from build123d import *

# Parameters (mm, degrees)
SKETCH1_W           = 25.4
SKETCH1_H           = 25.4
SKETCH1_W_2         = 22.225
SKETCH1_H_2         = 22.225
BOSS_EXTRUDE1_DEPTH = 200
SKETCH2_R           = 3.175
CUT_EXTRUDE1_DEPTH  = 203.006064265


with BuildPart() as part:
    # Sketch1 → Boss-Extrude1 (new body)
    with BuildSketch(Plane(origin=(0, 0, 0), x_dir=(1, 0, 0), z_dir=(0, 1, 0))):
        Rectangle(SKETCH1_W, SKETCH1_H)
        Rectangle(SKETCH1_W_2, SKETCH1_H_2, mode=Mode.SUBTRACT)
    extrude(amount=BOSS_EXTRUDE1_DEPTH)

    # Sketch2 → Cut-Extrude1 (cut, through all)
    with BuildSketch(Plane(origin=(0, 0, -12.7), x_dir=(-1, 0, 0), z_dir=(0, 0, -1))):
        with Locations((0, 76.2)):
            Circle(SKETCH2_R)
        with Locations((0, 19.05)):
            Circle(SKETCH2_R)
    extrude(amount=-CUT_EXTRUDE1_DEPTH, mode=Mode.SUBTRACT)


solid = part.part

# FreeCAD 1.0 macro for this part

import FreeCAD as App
import Part
import Sketcher
Q = App.Units.Quantity

doc = App.newDocument("Part")
body = doc.addObject("PartDesign::Body", "Body")

# Sketch on XZ plane
sketch1 = doc.addObject("Sketcher::SketchObject", "Sketch")
body.addObject(sketch1)
sketch1.AttachmentSupport = (doc.XZ_Plane, [""])
sketch1.MapMode = "FlatFace"
sketch1.addGeometry([
    Part.LineSegment(App.Vector(-13, -13, 0), App.Vector(-13, 13, 0)),  # 0
    Part.LineSegment(App.Vector(-13, 13, 0), App.Vector(13, 13, 0)),  # 1
    Part.LineSegment(App.Vector(13, 13, 0), App.Vector(13, -13, 0)),  # 2
    Part.LineSegment(App.Vector(13, -13, 0), App.Vector(-13, -13, 0)),  # 3
    Part.LineSegment(App.Vector(11, 11, 0), App.Vector(-11, 11, 0)),  # 4
    Part.LineSegment(App.Vector(-11, 11, 0), App.Vector(-11, -11, 0)),  # 5
    Part.LineSegment(App.Vector(-11, -11, 0), App.Vector(11, -11, 0)),  # 6
    Part.LineSegment(App.Vector(11, -11, 0), App.Vector(11, 11, 0)),  # 7
], False)
sketch1.addConstraint([
    Sketcher.Constraint("Coincident", 0, 2, 1, 1),
    Sketcher.Constraint("Coincident", 1, 2, 2, 1),
    Sketcher.Constraint("Coincident", 2, 2, 3, 1),
    Sketcher.Constraint("Coincident", 3, 2, 0, 1),
    Sketcher.Constraint("Coincident", 4, 2, 5, 1),
    Sketcher.Constraint("Coincident", 5, 2, 6, 1),
    Sketcher.Constraint("Coincident", 6, 2, 7, 1),
    Sketcher.Constraint("Coincident", 7, 2, 4, 1),
    Sketcher.Constraint("Vertical", 0),
    Sketcher.Constraint("Horizontal", 1),
    Sketcher.Constraint("Vertical", 2),
    Sketcher.Constraint("Horizontal", 3),
    Sketcher.Constraint("Horizontal", 4),
    Sketcher.Constraint("Vertical", 5),
    Sketcher.Constraint("Horizontal", 6),
    Sketcher.Constraint("Vertical", 7),
    Sketcher.Constraint("Symmetric", 0, 2, 2, 2, -1, 1),
    Sketcher.Constraint("Symmetric", 4, 2, 6, 2, -1, 1),
    Sketcher.Constraint("Equal", 3, 0),
    Sketcher.Constraint("Equal", 6, 5),
    Sketcher.Constraint("DistanceX", 1, 1, 1, 2, Q("1 in")),
    Sketcher.Constraint("DistanceX", 4, 2, 4, 1, Q("0.875 in")),
])
pad1 = doc.addObject("PartDesign::Pad", "Pad")
body.addObject(pad1)
pad1.Profile = sketch1
pad1.Length = 200
pad1.Reversed = True

# Sketch on XY plane
sketch2 = doc.addObject("Sketcher::SketchObject", "Sketch001")
body.addObject(sketch2)
sketch2.AttachmentSupport = (doc.XY_Plane, [""])
sketch2.MapMode = "FlatFace"
sketch2.AttachmentOffset = App.Placement(App.Vector(0, 0, -0.5 * 25.4), App.Rotation())
sketch2.addGeometry([
    Part.Circle(App.Vector(0, 76.2, 0), App.Vector(0, 0, 1), 3.2),
    Part.Circle(App.Vector(0, 19.1, 0), App.Vector(0, 0, 1), 3.2),
], False)
sketch2.addConstraint([
    Sketcher.Constraint("Equal", 0, 1),
    Sketcher.Constraint("PointOnObject", 0, 3, -2),
    Sketcher.Constraint("PointOnObject", 1, 3, -2),
    Sketcher.Constraint("Diameter", 0, Q("0.25 in")),
    Sketcher.Constraint("DistanceY", -1, 1, 0, 3, Q("3 in")),
    Sketcher.Constraint("DistanceY", -1, 1, 1, 3, Q("0.75 in")),
])
pocket1 = doc.addObject("PartDesign::Pocket", "Pocket")
body.addObject(pocket1)
pocket1.Profile = sketch2
pocket1.Type = "ThroughAll"
pocket1.Reversed = True

doc.recompute()
